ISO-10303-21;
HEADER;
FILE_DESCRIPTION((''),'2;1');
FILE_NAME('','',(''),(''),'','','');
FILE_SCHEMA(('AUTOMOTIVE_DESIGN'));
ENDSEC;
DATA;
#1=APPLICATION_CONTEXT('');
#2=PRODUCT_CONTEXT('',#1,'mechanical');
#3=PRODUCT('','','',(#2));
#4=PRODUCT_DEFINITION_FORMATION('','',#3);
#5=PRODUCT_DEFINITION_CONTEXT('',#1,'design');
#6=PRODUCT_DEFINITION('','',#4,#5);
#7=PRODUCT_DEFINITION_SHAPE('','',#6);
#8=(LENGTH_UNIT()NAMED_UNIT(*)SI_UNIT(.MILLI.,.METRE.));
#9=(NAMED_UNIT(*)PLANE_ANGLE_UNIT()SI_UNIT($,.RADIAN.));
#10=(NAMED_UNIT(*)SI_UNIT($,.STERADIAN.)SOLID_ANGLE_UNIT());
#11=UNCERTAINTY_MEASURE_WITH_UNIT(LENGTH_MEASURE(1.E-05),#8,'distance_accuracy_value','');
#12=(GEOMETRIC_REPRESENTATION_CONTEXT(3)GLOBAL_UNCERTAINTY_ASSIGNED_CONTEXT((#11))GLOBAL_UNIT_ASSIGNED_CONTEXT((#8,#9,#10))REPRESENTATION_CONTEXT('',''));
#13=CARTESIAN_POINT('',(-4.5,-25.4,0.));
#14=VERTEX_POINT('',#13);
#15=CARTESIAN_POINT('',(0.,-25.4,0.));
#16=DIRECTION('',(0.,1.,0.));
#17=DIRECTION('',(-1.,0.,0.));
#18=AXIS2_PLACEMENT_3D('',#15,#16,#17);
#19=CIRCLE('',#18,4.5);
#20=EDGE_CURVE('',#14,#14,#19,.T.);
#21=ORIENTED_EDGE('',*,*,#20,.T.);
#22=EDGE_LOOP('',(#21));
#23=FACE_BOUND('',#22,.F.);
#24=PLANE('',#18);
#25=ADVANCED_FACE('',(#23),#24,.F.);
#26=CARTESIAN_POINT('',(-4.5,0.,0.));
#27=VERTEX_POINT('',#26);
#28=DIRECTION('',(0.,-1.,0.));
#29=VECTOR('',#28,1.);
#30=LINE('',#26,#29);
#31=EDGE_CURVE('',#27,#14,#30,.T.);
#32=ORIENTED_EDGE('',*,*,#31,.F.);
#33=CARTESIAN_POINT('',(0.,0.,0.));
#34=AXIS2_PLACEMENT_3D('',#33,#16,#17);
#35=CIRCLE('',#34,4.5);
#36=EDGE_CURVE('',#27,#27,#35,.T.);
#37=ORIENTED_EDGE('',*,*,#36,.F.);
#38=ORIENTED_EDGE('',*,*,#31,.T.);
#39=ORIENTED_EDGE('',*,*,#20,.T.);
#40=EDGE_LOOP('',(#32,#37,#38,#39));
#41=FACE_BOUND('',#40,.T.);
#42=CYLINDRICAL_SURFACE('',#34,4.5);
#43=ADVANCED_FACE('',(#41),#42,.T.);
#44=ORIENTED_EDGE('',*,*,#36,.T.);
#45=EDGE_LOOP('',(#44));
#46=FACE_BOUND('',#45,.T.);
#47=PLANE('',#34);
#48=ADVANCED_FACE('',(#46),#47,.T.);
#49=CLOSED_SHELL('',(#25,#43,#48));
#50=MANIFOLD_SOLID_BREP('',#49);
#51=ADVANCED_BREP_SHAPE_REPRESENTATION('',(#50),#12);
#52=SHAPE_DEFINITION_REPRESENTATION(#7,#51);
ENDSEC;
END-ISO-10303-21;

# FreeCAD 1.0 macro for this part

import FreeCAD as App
import Part
import Sketcher
from FreeCAD import Vector
Q = App.Units.Quantity

doc = App.newDocument("Part")
body = doc.addObject("PartDesign::Body", "Body")

sketch1 = body.newObject("Sketcher::SketchObject", "Sketch")
sketch1.AttachmentSupport = (doc.getObject("XZ_Plane"), [""])
sketch1.MapMode = "FlatFace"
sketch1.addGeometry(Part.Circle(Vector(0, 0, 0), Vector(0, 0, 1), 4.5), False)
sketch1.addConstraint([
    Sketcher.Constraint("Coincident", 0, 3, -1, 1),
    Sketcher.Constraint("Diameter", 0, Q("9 mm")),
])
pad1 = body.newObject("PartDesign::Pad", "Pad")
pad1.Profile = sketch1
pad1.Length = 25.4

doc.recompute()
